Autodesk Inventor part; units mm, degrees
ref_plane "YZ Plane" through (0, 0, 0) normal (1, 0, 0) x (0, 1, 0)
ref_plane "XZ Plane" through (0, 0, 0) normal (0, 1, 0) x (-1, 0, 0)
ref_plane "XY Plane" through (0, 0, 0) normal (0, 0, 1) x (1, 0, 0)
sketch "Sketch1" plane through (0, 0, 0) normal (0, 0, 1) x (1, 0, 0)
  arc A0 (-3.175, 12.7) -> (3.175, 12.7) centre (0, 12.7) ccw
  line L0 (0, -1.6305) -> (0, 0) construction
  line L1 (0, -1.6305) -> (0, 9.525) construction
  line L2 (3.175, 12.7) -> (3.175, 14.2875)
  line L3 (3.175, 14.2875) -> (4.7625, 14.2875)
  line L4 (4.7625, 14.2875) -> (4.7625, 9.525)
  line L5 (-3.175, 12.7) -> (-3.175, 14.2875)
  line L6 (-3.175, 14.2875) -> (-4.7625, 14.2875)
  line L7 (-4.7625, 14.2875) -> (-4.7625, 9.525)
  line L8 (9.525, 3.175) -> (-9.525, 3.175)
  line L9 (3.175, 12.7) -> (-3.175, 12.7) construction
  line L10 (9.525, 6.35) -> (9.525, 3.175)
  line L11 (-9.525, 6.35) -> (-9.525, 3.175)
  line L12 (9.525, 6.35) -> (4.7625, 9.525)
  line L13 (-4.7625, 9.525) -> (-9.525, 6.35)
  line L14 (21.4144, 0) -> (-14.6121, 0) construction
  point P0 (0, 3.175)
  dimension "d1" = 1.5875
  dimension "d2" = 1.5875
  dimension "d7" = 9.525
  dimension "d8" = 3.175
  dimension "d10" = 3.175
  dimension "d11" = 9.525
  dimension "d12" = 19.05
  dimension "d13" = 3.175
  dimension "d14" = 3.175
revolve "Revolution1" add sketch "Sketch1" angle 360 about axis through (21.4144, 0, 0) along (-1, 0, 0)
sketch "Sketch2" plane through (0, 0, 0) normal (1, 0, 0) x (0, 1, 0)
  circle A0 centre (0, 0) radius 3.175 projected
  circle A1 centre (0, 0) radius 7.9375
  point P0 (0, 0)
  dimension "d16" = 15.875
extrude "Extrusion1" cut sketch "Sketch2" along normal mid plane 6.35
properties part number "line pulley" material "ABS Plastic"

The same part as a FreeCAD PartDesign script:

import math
import FreeCAD as App
import Part
import Sketcher
Q = App.Units.Quantity

doc = App.newDocument("Part")
body = doc.addObject("PartDesign::Body", "Body")

sketch1 = body.newObject("Sketcher::SketchObject", "Sketch")
sketch1.AttachmentSupport = (doc.getObject("XY_Plane"), [""])
sketch1.MapMode = "FlatFace"
sketch1.addGeometry([
    Part.ArcOfCircle(Part.Circle(App.Vector(0, 12.7, 0), App.Vector(0, 0, 1), 3.2), math.radians(180), math.radians(360)),
    Part.LineSegment(App.Vector(-3.2, 12.7, 0), App.Vector(-3.2, 14.3, 0)),
    Part.LineSegment(App.Vector(-3.2, 14.3, 0), App.Vector(-4.8, 14.3, 0)),
    Part.LineSegment(App.Vector(-4.8, 14.3, 0), App.Vector(-4.8, 9.5, 0)),
    Part.LineSegment(App.Vector(-4.8, 9.5, 0), App.Vector(-9.5, 6.3, 0)),
    Part.LineSegment(App.Vector(-9.5, 6.3, 0), App.Vector(-9.5, 3.2, 0)),
    Part.LineSegment(App.Vector(-9.5, 3.2, 0), App.Vector(9.5, 3.2, 0)),
    Part.LineSegment(App.Vector(9.5, 3.2, 0), App.Vector(9.5, 6.3, 0)),
    Part.LineSegment(App.Vector(9.5, 6.3, 0), App.Vector(4.8, 9.5, 0)),
    Part.LineSegment(App.Vector(4.8, 9.5, 0), App.Vector(4.8, 14.3, 0)),
    Part.LineSegment(App.Vector(4.8, 14.3, 0), App.Vector(3.2, 14.3, 0)),
    Part.LineSegment(App.Vector(3.2, 14.3, 0), App.Vector(3.2, 12.7, 0)),
], False)
sketch1.addConstraint([
    Sketcher.Constraint("Tangent", 0, 1, 1, 1),
    Sketcher.Constraint("Coincident", 1, 2, 2, 1),
    Sketcher.Constraint("Coincident", 2, 2, 3, 1),
    Sketcher.Constraint("Coincident", 3, 2, 4, 1),
    Sketcher.Constraint("Coincident", 4, 2, 5, 1),
    Sketcher.Constraint("Coincident", 5, 2, 6, 1),
    Sketcher.Constraint("Coincident", 6, 2, 7, 1),
    Sketcher.Constraint("Coincident", 7, 2, 8, 1),
    Sketcher.Constraint("Coincident", 8, 2, 9, 1),
    Sketcher.Constraint("Coincident", 9, 2, 10, 1),
    Sketcher.Constraint("Coincident", 10, 2, 11, 1),
    Sketcher.Constraint("Tangent", 11, 2, 0, 2),
    Sketcher.Constraint("Vertical", 1),
    Sketcher.Constraint("Horizontal", 2),
    Sketcher.Constraint("Vertical", 3),
    Sketcher.Constraint("Vertical", 5),
    Sketcher.Constraint("Horizontal", 6),
    Sketcher.Constraint("Vertical", 7),
    Sketcher.Constraint("Vertical", 9),
    Sketcher.Constraint("Horizontal", 10),
    Sketcher.Constraint("Vertical", 11),
    Sketcher.Constraint("Symmetric", 4, 2, 7, 2, -2),
    Sketcher.Constraint("Symmetric", 3, 2, 8, 2, -2),
    Sketcher.Constraint("Symmetric", 1, 2, 10, 2, -2),
    Sketcher.Constraint("Equal", 10, 1),
    Sketcher.Constraint("Radius", 0, Q("0.125 in")),
    Sketcher.Constraint("DistanceX", 6, 1, 6, 2, Q("0.75 in")),
    Sketcher.Constraint("DistanceX", 2, 2, 2, 1, Q("0.0625 in")),
    Sketcher.Constraint("DistanceY", 5, 2, 5, 1, Q("0.125 in")),
    Sketcher.Constraint("DistanceY", -1, 1, 3, 2, Q("0.375 in")),
    Sketcher.Constraint("DistanceY", -1, 1, 5, 2, Q("0.125 in")),
    Sketcher.Constraint("DistanceY", 3, 2, 0, 1, Q("0.125 in")),
])
revolution = body.newObject("PartDesign::Revolution", "Revolution")
revolution.Profile = sketch1
revolution.ReferenceAxis = (sketch1, ["H_Axis"])
revolution.Angle = 360

sketch2 = body.newObject("Sketcher::SketchObject", "Sketch001")
sketch2.AttachmentSupport = (doc.getObject("YZ_Plane"), [""])
sketch2.MapMode = "FlatFace"
sketch2.addGeometry([
    Part.Circle(App.Vector(0, 0, 0), App.Vector(0, 0, 1), 7.9),
    Part.Circle(App.Vector(0, 0, 0), App.Vector(0, 0, 1), 3.2),
], False)
sketch2.addConstraint([
    Sketcher.Constraint("Coincident", 0, 3, -1, 1),
    Sketcher.Constraint("Coincident", 1, 3, -1, 1),
    Sketcher.Constraint("Diameter", 0, Q("0.625 in")),
    Sketcher.Constraint("Diameter", 1, Q("0.25 in")),
])
pocket1 = body.newObject("PartDesign::Pocket", "Pocket")
pocket1.Profile = sketch2
pocket1.Length = Q("0.25 in")
pocket1.Midplane = True

doc.recompute()
